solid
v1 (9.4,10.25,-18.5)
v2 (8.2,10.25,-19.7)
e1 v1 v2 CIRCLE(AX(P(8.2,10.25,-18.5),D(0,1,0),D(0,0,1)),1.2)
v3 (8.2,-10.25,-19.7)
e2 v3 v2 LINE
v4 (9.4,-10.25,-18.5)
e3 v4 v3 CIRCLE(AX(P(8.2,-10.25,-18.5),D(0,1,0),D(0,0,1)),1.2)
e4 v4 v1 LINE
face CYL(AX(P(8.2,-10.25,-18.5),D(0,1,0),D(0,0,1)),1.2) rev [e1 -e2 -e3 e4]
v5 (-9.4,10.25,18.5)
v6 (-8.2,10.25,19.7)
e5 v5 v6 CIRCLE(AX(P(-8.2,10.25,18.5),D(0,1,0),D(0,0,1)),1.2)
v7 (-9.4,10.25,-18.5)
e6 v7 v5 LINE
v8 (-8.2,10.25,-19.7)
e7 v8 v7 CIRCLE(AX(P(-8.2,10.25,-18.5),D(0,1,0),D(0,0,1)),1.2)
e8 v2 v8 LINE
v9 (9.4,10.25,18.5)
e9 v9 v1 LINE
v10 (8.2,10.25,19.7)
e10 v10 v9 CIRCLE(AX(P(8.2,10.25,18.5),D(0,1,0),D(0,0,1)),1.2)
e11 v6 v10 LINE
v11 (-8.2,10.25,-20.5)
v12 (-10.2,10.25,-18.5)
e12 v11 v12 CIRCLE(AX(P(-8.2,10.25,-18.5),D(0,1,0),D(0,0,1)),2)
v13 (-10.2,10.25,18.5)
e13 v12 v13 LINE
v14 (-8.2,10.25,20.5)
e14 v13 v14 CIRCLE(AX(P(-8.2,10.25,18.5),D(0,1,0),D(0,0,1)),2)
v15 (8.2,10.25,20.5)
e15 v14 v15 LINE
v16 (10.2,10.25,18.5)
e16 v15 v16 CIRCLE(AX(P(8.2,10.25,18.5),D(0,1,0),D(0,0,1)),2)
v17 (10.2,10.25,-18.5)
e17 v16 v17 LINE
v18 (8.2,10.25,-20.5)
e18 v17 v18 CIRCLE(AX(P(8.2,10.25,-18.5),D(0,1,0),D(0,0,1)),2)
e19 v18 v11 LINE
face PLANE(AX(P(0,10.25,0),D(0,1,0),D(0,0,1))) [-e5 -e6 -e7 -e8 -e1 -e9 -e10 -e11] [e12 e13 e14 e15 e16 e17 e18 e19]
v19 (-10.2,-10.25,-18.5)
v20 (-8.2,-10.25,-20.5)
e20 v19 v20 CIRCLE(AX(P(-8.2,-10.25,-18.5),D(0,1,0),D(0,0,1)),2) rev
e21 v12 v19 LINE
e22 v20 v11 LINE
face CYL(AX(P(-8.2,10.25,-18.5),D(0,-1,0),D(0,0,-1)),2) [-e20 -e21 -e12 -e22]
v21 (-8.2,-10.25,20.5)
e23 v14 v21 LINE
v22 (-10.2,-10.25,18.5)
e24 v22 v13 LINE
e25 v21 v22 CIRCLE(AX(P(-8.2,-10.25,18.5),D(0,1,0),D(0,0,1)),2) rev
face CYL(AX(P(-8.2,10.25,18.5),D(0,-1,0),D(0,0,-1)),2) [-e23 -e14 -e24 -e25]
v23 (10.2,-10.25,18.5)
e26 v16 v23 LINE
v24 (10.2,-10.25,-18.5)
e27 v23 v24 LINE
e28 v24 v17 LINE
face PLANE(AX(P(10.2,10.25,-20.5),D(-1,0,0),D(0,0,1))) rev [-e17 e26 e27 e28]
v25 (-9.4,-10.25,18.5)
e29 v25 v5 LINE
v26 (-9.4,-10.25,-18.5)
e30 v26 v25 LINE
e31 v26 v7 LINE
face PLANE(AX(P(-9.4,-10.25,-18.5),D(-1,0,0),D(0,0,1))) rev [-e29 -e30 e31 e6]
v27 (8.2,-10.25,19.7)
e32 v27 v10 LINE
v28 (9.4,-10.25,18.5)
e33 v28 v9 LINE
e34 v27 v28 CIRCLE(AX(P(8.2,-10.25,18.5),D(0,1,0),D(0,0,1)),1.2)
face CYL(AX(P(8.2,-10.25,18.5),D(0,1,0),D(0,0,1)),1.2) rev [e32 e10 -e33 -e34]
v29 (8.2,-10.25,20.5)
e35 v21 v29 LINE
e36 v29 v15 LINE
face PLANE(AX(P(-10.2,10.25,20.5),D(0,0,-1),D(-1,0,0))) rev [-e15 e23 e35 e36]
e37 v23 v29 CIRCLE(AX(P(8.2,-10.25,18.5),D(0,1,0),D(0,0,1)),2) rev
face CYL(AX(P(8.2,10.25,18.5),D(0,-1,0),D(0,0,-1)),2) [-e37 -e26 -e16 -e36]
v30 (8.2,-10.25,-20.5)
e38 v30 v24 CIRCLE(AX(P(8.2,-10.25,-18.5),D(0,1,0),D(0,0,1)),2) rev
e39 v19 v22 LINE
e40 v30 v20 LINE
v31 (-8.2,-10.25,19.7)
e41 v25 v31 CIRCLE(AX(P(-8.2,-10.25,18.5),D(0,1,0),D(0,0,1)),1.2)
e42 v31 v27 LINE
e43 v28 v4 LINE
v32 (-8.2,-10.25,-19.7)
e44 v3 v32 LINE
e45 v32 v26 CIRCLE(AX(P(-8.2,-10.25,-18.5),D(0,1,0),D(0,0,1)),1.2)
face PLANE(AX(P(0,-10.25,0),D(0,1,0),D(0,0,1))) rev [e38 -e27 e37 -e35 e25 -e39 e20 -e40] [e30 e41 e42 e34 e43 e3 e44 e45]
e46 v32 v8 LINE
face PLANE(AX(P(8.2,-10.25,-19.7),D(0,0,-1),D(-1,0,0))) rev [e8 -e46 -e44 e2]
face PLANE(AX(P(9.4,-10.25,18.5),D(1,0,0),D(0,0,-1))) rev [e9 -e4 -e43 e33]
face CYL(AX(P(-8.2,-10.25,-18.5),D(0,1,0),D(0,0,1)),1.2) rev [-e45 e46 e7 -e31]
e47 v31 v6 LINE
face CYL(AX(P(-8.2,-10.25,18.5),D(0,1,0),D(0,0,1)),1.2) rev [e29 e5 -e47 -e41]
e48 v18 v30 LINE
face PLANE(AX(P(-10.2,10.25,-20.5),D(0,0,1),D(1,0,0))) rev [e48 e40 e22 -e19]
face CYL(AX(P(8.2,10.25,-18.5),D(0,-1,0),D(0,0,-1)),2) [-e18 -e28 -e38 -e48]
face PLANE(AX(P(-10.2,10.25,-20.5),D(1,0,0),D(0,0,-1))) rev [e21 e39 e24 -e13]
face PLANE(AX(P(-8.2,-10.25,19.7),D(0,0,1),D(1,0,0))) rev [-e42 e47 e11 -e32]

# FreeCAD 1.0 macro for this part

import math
import FreeCAD as App
import Part
import Sketcher

V = App.Vector


def edges_at(feature, points):
    """Names of the edges that pass closest to the given points."""
    edges = feature.Shape.Edges
    near = lambda p: min(range(len(edges)), key=lambda i: edges[i].distToShape(Part.Vertex(*p))[0])
    return sorted({f"Edge{near(p) + 1}" for p in points})

doc = App.newDocument("Part")
body = doc.addObject("PartDesign::Body", "Body")

sketch1 = body.newObject("Sketcher::SketchObject", "Sketch")
sketch1.AttachmentSupport = (doc.getObject("XZ_Plane"), [""])
sketch1.MapMode = "FlatFace"
sketch1.addGeometry(Part.LineSegment(V(-10, -20, 0), V(-10, 20, 0)), False)
sketch1.addGeometry(Part.LineSegment(V(-10, 20, 0), V(10, 20, 0)), False)
sketch1.addGeometry(Part.LineSegment(V(10, 20, 0), V(10, -20, 0)), False)
sketch1.addGeometry(Part.LineSegment(V(10, -20, 0), V(-10, -20, 0)), False)
sketch1.addConstraint(Sketcher.Constraint("Coincident", 0, 2, 1, 1))
sketch1.addConstraint(Sketcher.Constraint("Coincident", 1, 2, 2, 1))
sketch1.addConstraint(Sketcher.Constraint("Coincident", 2, 2, 3, 1))
sketch1.addConstraint(Sketcher.Constraint("Coincident", 3, 2, 0, 1))
sketch1.addConstraint(Sketcher.Constraint("Vertical", 0))
sketch1.addConstraint(Sketcher.Constraint("Horizontal", 1))
sketch1.addConstraint(Sketcher.Constraint("Vertical", 2))
sketch1.addConstraint(Sketcher.Constraint("Horizontal", 3))
sketch1.addConstraint(Sketcher.Constraint("Symmetric", 0, 2, 2, 2, -1, 1))
sketch1.addConstraint(Sketcher.Constraint("DistanceY", 0, 1, 0, 2, 41.0))
sketch1.addConstraint(Sketcher.Constraint("DistanceX", 1, 1, 1, 2, 20.4))
pad1 = body.newObject("PartDesign::Pad", "Pad")
pad1.Profile = sketch1
pad1.Length = 20.5
pad1.Midplane = True
doc.recompute()

fillet = body.newObject("PartDesign::Fillet", "Fillet")
fillet.Base = (pad1, edges_at(pad1, [
    (10.2, 0, 20.5),
    (-10.2, 0, 20.5),
    (-10.2, 0, -20.5),
    (10.2, 0, -20.5),
]))
fillet.Radius = 2

sketch2 = body.newObject("Sketcher::SketchObject", "Sketch001")
sketch2.AttachmentSupport = (doc.getObject("XZ_Plane"), [""])
sketch2.MapMode = "FlatFace"
sketch2.AttachmentOffset = App.Placement(V(0, 0, -10.25), App.Rotation())
sketch2.addGeometry(Part.LineSegment(V(8.2, -19.7, 0), V(-8.2, -19.7, 0)), False)
sketch2.addGeometry(Part.ArcOfCircle(Part.Circle(V(-8.2, -18.5, 0), V(0, 0, 1), 1.2), math.radians(-180), math.radians(-90)), False)
sketch2.addGeometry(Part.LineSegment(V(-9.4, -18.5, 0), V(-9.4, 18.5, 0)), False)
sketch2.addGeometry(Part.ArcOfCircle(Part.Circle(V(-8.2, 18.5, 0), V(0, 0, 1), 1.2), math.radians(90), math.radians(180)), False)
sketch2.addGeometry(Part.LineSegment(V(-8.2, 19.7, 0), V(8.2, 19.7, 0)), False)
sketch2.addGeometry(Part.ArcOfCircle(Part.Circle(V(8.2, 18.5, 0), V(0, 0, 1), 1.2), math.radians(0), math.radians(90)), False)
sketch2.addGeometry(Part.LineSegment(V(9.4, 18.5, 0), V(9.4, -18.5, 0)), False)
sketch2.addGeometry(Part.ArcOfCircle(Part.Circle(V(8.2, -18.5, 0), V(0, 0, 1), 1.2), math.radians(-90), math.radians(0)), False)
sketch2.addConstraint(Sketcher.Constraint("Tangent", 0, 2, 1, 2))
sketch2.addConstraint(Sketcher.Constraint("Tangent", 1, 1, 2, 1))
sketch2.addConstraint(Sketcher.Constraint("Tangent", 2, 2, 3, 2))
sketch2.addConstraint(Sketcher.Constraint("Tangent", 3, 1, 4, 1))
sketch2.addConstraint(Sketcher.Constraint("Tangent", 4, 2, 5, 2))
sketch2.addConstraint(Sketcher.Constraint("Tangent", 5, 1, 6, 1))
sketch2.addConstraint(Sketcher.Constraint("Tangent", 6, 2, 7, 2))
sketch2.addConstraint(Sketcher.Constraint("Tangent", 7, 1, 0, 1))
sketch2.addConstraint(Sketcher.Constraint("Horizontal", 0))
sketch2.addConstraint(Sketcher.Constraint("Vertical", 2))
sketch2.addConstraint(Sketcher.Constraint("Horizontal", 4))
sketch2.addConstraint(Sketcher.Constraint("Vertical", 6))
sketch2.addConstraint(Sketcher.Constraint("Equal", 1, 3))
sketch2.addConstraint(Sketcher.Constraint("Equal", 3, 5))
sketch2.addConstraint(Sketcher.Constraint("Equal", 5, 7))
sketch2.addConstraint(Sketcher.Constraint("Symmetric", 1, 3, 5, 3, -1, 1))
sketch2.addConstraint(Sketcher.Constraint("Radius", 1, 1.2))
sketch2.addConstraint(Sketcher.Constraint("DistanceY", 2, 1, 2, 2, 37.0))
sketch2.addConstraint(Sketcher.Constraint("DistanceX", 0, 2, 0, 1, 16.4))
pocket1 = body.newObject("PartDesign::Pocket", "Pocket")
pocket1.Profile = sketch2
pocket1.Type = "ThroughAll"
pocket1.Reversed = True

doc.recompute()
